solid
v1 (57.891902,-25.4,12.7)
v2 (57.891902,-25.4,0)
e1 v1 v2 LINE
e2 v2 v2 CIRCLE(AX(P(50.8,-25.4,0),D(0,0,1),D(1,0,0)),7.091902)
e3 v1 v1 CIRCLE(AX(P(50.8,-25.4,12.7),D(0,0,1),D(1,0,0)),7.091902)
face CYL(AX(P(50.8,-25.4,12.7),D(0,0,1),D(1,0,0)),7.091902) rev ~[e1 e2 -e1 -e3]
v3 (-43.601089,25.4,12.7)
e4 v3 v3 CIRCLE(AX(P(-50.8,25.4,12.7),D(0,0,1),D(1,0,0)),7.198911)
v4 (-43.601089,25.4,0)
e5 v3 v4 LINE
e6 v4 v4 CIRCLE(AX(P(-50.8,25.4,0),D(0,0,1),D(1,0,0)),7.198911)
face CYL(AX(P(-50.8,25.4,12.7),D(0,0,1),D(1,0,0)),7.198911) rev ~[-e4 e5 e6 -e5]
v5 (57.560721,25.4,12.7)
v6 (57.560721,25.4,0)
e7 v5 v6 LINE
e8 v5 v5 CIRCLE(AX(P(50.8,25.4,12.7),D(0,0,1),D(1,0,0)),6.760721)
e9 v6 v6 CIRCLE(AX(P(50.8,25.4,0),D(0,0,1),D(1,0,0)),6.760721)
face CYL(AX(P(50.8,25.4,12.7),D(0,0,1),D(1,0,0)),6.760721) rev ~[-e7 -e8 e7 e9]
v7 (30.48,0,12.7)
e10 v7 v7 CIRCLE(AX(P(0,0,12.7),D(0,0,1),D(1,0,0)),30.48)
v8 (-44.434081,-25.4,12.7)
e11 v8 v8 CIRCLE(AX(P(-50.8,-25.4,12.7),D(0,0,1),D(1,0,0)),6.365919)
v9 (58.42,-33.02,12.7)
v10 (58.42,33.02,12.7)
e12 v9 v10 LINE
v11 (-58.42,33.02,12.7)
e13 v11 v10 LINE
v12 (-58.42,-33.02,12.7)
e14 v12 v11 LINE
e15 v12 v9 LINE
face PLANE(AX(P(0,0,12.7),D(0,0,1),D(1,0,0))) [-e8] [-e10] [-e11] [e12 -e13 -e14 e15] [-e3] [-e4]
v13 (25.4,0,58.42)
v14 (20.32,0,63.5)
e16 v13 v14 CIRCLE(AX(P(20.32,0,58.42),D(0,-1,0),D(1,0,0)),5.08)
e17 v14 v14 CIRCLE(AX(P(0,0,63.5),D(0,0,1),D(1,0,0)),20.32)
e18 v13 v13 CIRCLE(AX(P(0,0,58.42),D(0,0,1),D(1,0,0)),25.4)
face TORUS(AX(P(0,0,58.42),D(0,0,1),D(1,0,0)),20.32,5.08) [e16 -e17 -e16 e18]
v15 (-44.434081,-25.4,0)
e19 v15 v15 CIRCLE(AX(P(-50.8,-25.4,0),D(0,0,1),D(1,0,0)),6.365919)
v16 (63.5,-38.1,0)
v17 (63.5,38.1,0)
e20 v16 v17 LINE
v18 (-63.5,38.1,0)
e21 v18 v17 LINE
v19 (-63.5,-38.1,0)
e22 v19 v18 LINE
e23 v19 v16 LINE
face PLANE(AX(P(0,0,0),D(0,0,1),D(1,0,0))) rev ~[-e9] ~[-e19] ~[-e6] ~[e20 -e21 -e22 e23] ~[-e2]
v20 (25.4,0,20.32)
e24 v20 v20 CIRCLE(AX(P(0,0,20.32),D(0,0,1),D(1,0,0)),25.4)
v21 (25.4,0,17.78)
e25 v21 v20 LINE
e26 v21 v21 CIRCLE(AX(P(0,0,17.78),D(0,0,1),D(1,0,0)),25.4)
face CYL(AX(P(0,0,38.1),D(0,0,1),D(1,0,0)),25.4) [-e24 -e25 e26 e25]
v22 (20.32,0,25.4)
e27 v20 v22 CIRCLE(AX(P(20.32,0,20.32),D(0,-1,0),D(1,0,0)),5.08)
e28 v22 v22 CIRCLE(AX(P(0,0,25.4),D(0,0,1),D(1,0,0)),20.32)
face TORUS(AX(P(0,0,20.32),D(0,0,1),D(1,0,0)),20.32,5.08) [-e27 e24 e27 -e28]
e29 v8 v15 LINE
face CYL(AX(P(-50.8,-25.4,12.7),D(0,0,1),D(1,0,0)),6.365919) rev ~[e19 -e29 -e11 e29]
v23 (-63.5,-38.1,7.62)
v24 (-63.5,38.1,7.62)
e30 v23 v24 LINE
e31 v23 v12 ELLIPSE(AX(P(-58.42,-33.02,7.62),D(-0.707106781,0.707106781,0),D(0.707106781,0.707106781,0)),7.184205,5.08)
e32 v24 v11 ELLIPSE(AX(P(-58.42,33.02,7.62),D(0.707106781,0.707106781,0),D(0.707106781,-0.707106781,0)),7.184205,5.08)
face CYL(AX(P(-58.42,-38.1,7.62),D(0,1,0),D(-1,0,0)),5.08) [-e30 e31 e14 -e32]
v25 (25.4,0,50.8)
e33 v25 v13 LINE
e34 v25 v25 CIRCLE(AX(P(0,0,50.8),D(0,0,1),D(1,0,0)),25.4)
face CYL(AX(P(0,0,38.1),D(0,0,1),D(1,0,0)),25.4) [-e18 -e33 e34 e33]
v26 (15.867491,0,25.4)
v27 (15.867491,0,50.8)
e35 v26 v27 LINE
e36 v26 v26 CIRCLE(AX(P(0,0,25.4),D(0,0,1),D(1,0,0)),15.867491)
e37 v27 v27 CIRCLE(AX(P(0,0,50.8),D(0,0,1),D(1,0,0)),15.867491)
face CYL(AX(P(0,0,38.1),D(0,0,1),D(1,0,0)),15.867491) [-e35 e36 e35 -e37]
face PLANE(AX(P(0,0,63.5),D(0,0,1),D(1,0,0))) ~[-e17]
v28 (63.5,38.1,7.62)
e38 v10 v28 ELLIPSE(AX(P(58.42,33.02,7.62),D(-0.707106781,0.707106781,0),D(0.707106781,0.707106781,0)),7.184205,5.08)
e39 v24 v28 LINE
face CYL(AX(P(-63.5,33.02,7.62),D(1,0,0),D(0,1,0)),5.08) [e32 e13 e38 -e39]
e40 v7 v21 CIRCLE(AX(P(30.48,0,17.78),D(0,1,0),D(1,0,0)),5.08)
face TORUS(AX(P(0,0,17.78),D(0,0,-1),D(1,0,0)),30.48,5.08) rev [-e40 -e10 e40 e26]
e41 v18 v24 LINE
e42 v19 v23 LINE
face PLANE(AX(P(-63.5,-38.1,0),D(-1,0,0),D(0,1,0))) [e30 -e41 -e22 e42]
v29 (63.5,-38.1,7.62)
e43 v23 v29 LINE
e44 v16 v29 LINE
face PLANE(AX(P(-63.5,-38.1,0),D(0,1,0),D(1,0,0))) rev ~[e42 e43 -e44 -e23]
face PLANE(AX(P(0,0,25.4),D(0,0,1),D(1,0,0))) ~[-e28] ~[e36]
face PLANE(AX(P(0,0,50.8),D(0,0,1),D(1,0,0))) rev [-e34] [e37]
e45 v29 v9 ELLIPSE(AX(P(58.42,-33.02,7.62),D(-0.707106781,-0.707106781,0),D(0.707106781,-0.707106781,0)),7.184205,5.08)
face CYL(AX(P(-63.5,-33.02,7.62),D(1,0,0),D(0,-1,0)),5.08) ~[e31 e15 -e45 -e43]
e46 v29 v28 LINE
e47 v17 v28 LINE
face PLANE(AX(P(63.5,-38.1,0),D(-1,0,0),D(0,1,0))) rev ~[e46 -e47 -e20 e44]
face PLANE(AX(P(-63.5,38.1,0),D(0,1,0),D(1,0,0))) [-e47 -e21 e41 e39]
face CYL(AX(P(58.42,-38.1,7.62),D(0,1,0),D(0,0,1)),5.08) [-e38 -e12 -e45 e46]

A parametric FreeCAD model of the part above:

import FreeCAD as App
import Part
import Sketcher
Q = App.Units.Quantity


def edges_at(feature, points):
    """Names of the edges that pass closest to the given points."""
    edges = feature.Shape.Edges
    near = lambda p: min(range(len(edges)), key=lambda i: edges[i].distToShape(Part.Vertex(*p))[0])
    return sorted({f"Edge{near(p) + 1}" for p in points})


def add_polygon(sketch, points):
    """Adds a closed chain of lines whose ends are joined by coincident constraints."""
    first, n = sketch.GeometryCount, len(points)
    for a, b in zip(points, points[1:] + points[:1]):
        sketch.addGeometry(Part.LineSegment(App.Vector(*a, 0), App.Vector(*b, 0)), False)
    for i in range(n):
        sketch.addConstraint(Sketcher.Constraint("Coincident", first + i, 2, first + (i + 1) % n, 1))

doc = App.newDocument("Part")
body = doc.addObject("PartDesign::Body", "Body")

# Sketch on XY plane
sketch1 = doc.addObject("Sketcher::SketchObject", "Sketch")
body.addObject(sketch1)
sketch1.AttachmentSupport = (doc.XY_Plane, [""])
sketch1.MapMode = "FlatFace"
add_polygon(sketch1, [(-64, 38), (-64, -38), (64, -38), (64, 38)])  # lines 0-3
sketch1.addConstraint([
    Sketcher.Constraint("Vertical", 0),
    Sketcher.Constraint("Horizontal", 1),
    Sketcher.Constraint("Vertical", 2),
    Sketcher.Constraint("Horizontal", 3),
    Sketcher.Constraint("Symmetric", 0, 2, 2, 2, -1, 1),
    Sketcher.Constraint("DistanceX", 1, 1, 1, 2, Q("5 in")),
    Sketcher.Constraint("DistanceY", 0, 2, 0, 1, Q("3 in")),
])
pad1 = doc.addObject("PartDesign::Pad", "Pad")
body.addObject(pad1)
pad1.Profile = sketch1
pad1.Length = Q("0.5 in")

# Sketch on XY plane
sketch2 = doc.addObject("Sketcher::SketchObject", "Sketch001")
body.addObject(sketch2)
sketch2.AttachmentSupport = (doc.XY_Plane, [""])
sketch2.MapMode = "FlatFace"
sketch2.AttachmentOffset = App.Placement(App.Vector(0, 0, 0.5 * 25.4), App.Rotation())
sketch2.addGeometry([
    Part.Circle(App.Vector(-51, 25, 0), App.Vector(0, 0, 1), 7),
    Part.Circle(App.Vector(51, 25, 0), App.Vector(0, 0, 1), 7),
    Part.Circle(App.Vector(51, -25, 0), App.Vector(0, 0, 1), 7),
    Part.Circle(App.Vector(-51, -25, 0), App.Vector(0, 0, 1), 6),
], False)
sketch2.addConstraint([
    Sketcher.Constraint("Symmetric", 0, 3, 2, 3, -1, 1),
    Sketcher.Constraint("Symmetric", 1, 3, 3, 3, -1, 1),
    Sketcher.Constraint("Symmetric", 0, 3, 1, 3, -2),
    Sketcher.Constraint("DistanceX", 0, 3, -1, 1, Q("2 in")),
    Sketcher.Constraint("DistanceY", -1, 1, 0, 3, Q("1 in")),
    Sketcher.Constraint("Diameter", 0, Q("14.397822 mm")),
    Sketcher.Constraint("Diameter", 1, Q("13.521442 mm")),
    Sketcher.Constraint("Diameter", 2, Q("14.183805 mm")),
    Sketcher.Constraint("Diameter", 3, Q("12.731838 mm")),
])
pocket1 = doc.addObject("PartDesign::Pocket", "Pocket")
body.addObject(pocket1)
pocket1.Profile = sketch2
pocket1.Type = "ThroughAll"

# Sketch on XZ plane
sketch3 = doc.addObject("Sketcher::SketchObject", "Sketch002")
body.addObject(sketch3)
sketch3.AttachmentSupport = (doc.XZ_Plane, [""])
sketch3.MapMode = "FlatFace"
add_polygon(sketch3, [(0, 64), (0, 13), (25, 13), (25, 64)])  # lines 0-3
sketch3.addConstraint([
    Sketcher.Constraint("Vertical", 0),
    Sketcher.Constraint("Horizontal", 1),
    Sketcher.Constraint("Vertical", 2),
    Sketcher.Constraint("Horizontal", 3),
    Sketcher.Constraint("PointOnObject", 0, 2, -2),
    Sketcher.Constraint("DistanceX", 1, 1, 1, 2, Q("1 in")),
    Sketcher.Constraint("DistanceY", 0, 2, 0, 1, Q("2 in")),
    Sketcher.Constraint("DistanceY", -1, 1, 0, 2, Q("0.5 in")),
])
revolution = doc.addObject("PartDesign::Revolution", "Revolution")
body.addObject(revolution)
revolution.Profile = sketch3
revolution.ReferenceAxis = (sketch3, ["V_Axis"])
revolution.Angle = 360

# Sketch on XZ plane
sketch4 = doc.addObject("Sketcher::SketchObject", "Sketch003")
body.addObject(sketch4)
sketch4.AttachmentSupport = (doc.XZ_Plane, [""])
sketch4.MapMode = "FlatFace"
add_polygon(sketch4, [(16, 51), (16, 25), (37, 25), (37, 51)])  # lines 0-3
sketch4.addConstraint([
    Sketcher.Constraint("Vertical", 0),
    Sketcher.Constraint("Horizontal", 1),
    Sketcher.Constraint("Vertical", 2),
    Sketcher.Constraint("Horizontal", 3),
    Sketcher.Constraint("DistanceY", 0, 2, 0, 1, Q("1 in")),
    Sketcher.Constraint("DistanceY", -1, 1, 0, 2, Q("1 in")),
    Sketcher.Constraint("DistanceX", 1, 1, 1, 2, Q("20.640427 mm")),
    Sketcher.Constraint("DistanceX", -1, 1, 0, 2, Q("15.867491 mm")),
])
groove = doc.addObject("PartDesign::Groove", "Groove")
body.addObject(groove)
groove.Profile = sketch4
groove.ReferenceAxis = (sketch4, ["V_Axis"])
groove.Angle = 360
doc.recompute()

fillet = doc.addObject("PartDesign::Fillet", "Fillet")
body.addObject(fillet)
fillet.Base = (groove, edges_at(groove, [
    (-25.4, 0, 63.5),
    (-25.4, 0, 12.7),
    (-25.4, 0, 25.4),
    (0, -38.1, 12.7),
    (63.5, 0, 12.7),
    (0, 38.1, 12.7),
    (-63.5, 0, 12.7),
]))
fillet.Radius = Q("0.2 in")

doc.recompute()
